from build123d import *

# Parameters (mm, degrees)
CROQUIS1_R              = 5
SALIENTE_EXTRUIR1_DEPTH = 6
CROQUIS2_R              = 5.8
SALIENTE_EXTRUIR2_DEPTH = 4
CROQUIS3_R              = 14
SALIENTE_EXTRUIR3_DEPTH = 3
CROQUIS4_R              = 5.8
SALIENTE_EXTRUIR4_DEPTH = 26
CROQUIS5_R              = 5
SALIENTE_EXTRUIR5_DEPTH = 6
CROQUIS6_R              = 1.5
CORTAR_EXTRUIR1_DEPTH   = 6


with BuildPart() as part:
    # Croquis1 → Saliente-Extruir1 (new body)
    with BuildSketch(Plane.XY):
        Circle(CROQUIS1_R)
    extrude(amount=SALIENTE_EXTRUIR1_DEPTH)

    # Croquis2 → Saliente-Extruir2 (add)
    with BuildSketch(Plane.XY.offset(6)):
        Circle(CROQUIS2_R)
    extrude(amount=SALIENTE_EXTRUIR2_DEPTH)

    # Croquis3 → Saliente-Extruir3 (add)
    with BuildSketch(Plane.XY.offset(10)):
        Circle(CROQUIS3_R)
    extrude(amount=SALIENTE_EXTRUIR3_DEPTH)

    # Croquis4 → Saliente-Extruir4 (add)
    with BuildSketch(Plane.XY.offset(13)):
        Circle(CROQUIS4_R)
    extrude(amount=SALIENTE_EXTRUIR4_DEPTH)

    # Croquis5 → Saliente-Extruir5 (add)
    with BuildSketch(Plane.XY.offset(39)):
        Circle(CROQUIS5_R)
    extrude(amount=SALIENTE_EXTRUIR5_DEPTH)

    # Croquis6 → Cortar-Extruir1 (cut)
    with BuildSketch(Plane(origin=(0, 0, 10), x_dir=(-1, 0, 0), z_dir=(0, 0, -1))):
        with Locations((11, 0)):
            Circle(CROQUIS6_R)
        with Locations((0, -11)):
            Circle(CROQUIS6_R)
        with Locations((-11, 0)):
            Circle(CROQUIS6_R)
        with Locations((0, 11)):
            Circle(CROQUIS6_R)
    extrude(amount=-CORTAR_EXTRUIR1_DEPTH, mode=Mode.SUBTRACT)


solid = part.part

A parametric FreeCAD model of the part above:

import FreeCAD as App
import Part
import Sketcher
from FreeCAD import Vector
Q = App.Units.Quantity

doc = App.newDocument("Part")
params = doc.addObject("Spreadsheet::Sheet", "Params")
for row, (alias, value) in enumerate([
    ("sketch1_diameter", "10 mm"),
    ("pad1_length", "6 mm"),
    ("sketch2_diameter", "11.6 mm"),
    ("pad2_length", "4 mm"),
    ("sketch3_diameter", "28 mm"),
    ("pad3_length", "3 mm"),
    ("sketch4_diameter", "11.6 mm"),
    ("pad4_length", "26 mm"),
    ("sketch5_diameter", "10 mm"),
    ("pad5_length", "6 mm"),
    ("sketch6_diameter", "3 mm"),
    ("pocket1_length", "6 mm"),
], start=1):
    params.set(f"A{row}", alias)
    params.set(f"B{row}", "=" + value)
    params.setAlias(f"B{row}", alias)

body = doc.addObject("PartDesign::Body", "Body")

sketch1 = body.newObject("Sketcher::SketchObject", "Sketch")
sketch1.AttachmentSupport = (doc.getObject("XY_Plane"), [""])
sketch1.MapMode = "FlatFace"
sketch1.addGeometry(Part.Circle(Vector(0, 0, 0), Vector(0, 0, 1), 5), False)
sketch1.addConstraint(Sketcher.Constraint("Coincident", 0, 3, -1, 1))
sketch1.addConstraint(Sketcher.Constraint("Diameter", 0, Q("10 mm")))
sketch1.setExpression("Constraints[1]", "Params.sketch1_diameter")
pad1 = body.newObject("PartDesign::Pad", "Pad")
pad1.Profile = sketch1
pad1.setExpression("Length", "Params.pad1_length")

sketch2 = body.newObject("Sketcher::SketchObject", "Sketch001")
sketch2.AttachmentSupport = (doc.getObject("XY_Plane"), [""])
sketch2.MapMode = "FlatFace"
sketch2.AttachmentOffset = App.Placement(Vector(0, 0, 6), App.Rotation())
sketch2.addGeometry(Part.Circle(Vector(0, 0, 0), Vector(0, 0, 1), 6), False)
sketch2.addConstraint(Sketcher.Constraint("Coincident", 0, 3, -1, 1))
sketch2.addConstraint(Sketcher.Constraint("Diameter", 0, Q("11.6 mm")))
sketch2.setExpression("Constraints[1]", "Params.sketch2_diameter")
pad2 = body.newObject("PartDesign::Pad", "Pad001")
pad2.Profile = sketch2
pad2.setExpression("Length", "Params.pad2_length")

sketch3 = body.newObject("Sketcher::SketchObject", "Sketch002")
sketch3.AttachmentSupport = (doc.getObject("XY_Plane"), [""])
sketch3.MapMode = "FlatFace"
sketch3.AttachmentOffset = App.Placement(Vector(0, 0, 10), App.Rotation())
sketch3.addGeometry(Part.Circle(Vector(0, 0, 0), Vector(0, 0, 1), 14), False)
sketch3.addConstraint(Sketcher.Constraint("Coincident", 0, 3, -1, 1))
sketch3.addConstraint(Sketcher.Constraint("Diameter", 0, Q("28 mm")))
sketch3.setExpression("Constraints[1]", "Params.sketch3_diameter")
pad3 = body.newObject("PartDesign::Pad", "Pad002")
pad3.Profile = sketch3
pad3.setExpression("Length", "Params.pad3_length")

sketch4 = body.newObject("Sketcher::SketchObject", "Sketch003")
sketch4.AttachmentSupport = (doc.getObject("XY_Plane"), [""])
sketch4.MapMode = "FlatFace"
sketch4.AttachmentOffset = App.Placement(Vector(0, 0, 13), App.Rotation())
sketch4.addGeometry(Part.Circle(Vector(0, 0, 0), Vector(0, 0, 1), 6), False)
sketch4.addConstraint(Sketcher.Constraint("Coincident", 0, 3, -1, 1))
sketch4.addConstraint(Sketcher.Constraint("Diameter", 0, Q("11.6 mm")))
sketch4.setExpression("Constraints[1]", "Params.sketch4_diameter")
pad4 = body.newObject("PartDesign::Pad", "Pad003")
pad4.Profile = sketch4
pad4.setExpression("Length", "Params.pad4_length")

sketch5 = body.newObject("Sketcher::SketchObject", "Sketch004")
sketch5.AttachmentSupport = (doc.getObject("XY_Plane"), [""])
sketch5.MapMode = "FlatFace"
sketch5.AttachmentOffset = App.Placement(Vector(0, 0, 39), App.Rotation())
sketch5.addGeometry(Part.Circle(Vector(0, 0, 0), Vector(0, 0, 1), 5), False)
sketch5.addConstraint(Sketcher.Constraint("Coincident", 0, 3, -1, 1))
sketch5.addConstraint(Sketcher.Constraint("Diameter", 0, Q("10 mm")))
sketch5.setExpression("Constraints[1]", "Params.sketch5_diameter")
pad5 = body.newObject("PartDesign::Pad", "Pad004")
pad5.Profile = sketch5
pad5.setExpression("Length", "Params.pad5_length")

sketch6 = body.newObject("Sketcher::SketchObject", "Sketch005")
sketch6.AttachmentSupport = (doc.getObject("XY_Plane"), [""])
sketch6.MapMode = "FlatFace"
sketch6.AttachmentOffset = App.Placement(Vector(0, 0, 10), App.Rotation())
sketch6.addGeometry(Part.Circle(Vector(-11, 0, 0), Vector(0, 0, 1), 1.5), False)
sketch6.addGeometry(Part.Circle(Vector(0, -11, 0), Vector(0, 0, 1), 1.5), False)
sketch6.addGeometry(Part.Circle(Vector(11, 0, 0), Vector(0, 0, 1), 1.5), False)
sketch6.addGeometry(Part.Circle(Vector(0, 11, 0), Vector(0, 0, 1), 1.5), False)
sketch6.addConstraint(Sketcher.Constraint("Equal", 0, 1))
sketch6.addConstraint(Sketcher.Constraint("Equal", 1, 2))
sketch6.addConstraint(Sketcher.Constraint("Equal", 2, 3))
sketch6.addConstraint(Sketcher.Constraint("Symmetric", 0, 3, 2, 3, -1, 1))
sketch6.addConstraint(Sketcher.Constraint("Symmetric", 1, 3, 3, 3, -1, 1))
sketch6.addConstraint(Sketcher.Constraint("PointOnObject", 0, 3, -1))
sketch6.addConstraint(Sketcher.Constraint("PointOnObject", 1, 3, -2))
sketch6.addConstraint(Sketcher.Constraint("Diameter", 0, Q("3 mm")))
sketch6.addConstraint(Sketcher.Constraint("DistanceX", 0, 3, -1, 1, Q("11 mm")))
sketch6.addConstraint(Sketcher.Constraint("DistanceY", 1, 3, -1, 1, Q("11 mm")))
sketch6.setExpression("Constraints[7]", "Params.sketch6_diameter")
pocket1 = body.newObject("PartDesign::Pocket", "Pocket")
pocket1.Profile = sketch6
pocket1.setExpression("Length", "Params.pocket1_length")
pocket1.Reversed = True

doc.recompute()
